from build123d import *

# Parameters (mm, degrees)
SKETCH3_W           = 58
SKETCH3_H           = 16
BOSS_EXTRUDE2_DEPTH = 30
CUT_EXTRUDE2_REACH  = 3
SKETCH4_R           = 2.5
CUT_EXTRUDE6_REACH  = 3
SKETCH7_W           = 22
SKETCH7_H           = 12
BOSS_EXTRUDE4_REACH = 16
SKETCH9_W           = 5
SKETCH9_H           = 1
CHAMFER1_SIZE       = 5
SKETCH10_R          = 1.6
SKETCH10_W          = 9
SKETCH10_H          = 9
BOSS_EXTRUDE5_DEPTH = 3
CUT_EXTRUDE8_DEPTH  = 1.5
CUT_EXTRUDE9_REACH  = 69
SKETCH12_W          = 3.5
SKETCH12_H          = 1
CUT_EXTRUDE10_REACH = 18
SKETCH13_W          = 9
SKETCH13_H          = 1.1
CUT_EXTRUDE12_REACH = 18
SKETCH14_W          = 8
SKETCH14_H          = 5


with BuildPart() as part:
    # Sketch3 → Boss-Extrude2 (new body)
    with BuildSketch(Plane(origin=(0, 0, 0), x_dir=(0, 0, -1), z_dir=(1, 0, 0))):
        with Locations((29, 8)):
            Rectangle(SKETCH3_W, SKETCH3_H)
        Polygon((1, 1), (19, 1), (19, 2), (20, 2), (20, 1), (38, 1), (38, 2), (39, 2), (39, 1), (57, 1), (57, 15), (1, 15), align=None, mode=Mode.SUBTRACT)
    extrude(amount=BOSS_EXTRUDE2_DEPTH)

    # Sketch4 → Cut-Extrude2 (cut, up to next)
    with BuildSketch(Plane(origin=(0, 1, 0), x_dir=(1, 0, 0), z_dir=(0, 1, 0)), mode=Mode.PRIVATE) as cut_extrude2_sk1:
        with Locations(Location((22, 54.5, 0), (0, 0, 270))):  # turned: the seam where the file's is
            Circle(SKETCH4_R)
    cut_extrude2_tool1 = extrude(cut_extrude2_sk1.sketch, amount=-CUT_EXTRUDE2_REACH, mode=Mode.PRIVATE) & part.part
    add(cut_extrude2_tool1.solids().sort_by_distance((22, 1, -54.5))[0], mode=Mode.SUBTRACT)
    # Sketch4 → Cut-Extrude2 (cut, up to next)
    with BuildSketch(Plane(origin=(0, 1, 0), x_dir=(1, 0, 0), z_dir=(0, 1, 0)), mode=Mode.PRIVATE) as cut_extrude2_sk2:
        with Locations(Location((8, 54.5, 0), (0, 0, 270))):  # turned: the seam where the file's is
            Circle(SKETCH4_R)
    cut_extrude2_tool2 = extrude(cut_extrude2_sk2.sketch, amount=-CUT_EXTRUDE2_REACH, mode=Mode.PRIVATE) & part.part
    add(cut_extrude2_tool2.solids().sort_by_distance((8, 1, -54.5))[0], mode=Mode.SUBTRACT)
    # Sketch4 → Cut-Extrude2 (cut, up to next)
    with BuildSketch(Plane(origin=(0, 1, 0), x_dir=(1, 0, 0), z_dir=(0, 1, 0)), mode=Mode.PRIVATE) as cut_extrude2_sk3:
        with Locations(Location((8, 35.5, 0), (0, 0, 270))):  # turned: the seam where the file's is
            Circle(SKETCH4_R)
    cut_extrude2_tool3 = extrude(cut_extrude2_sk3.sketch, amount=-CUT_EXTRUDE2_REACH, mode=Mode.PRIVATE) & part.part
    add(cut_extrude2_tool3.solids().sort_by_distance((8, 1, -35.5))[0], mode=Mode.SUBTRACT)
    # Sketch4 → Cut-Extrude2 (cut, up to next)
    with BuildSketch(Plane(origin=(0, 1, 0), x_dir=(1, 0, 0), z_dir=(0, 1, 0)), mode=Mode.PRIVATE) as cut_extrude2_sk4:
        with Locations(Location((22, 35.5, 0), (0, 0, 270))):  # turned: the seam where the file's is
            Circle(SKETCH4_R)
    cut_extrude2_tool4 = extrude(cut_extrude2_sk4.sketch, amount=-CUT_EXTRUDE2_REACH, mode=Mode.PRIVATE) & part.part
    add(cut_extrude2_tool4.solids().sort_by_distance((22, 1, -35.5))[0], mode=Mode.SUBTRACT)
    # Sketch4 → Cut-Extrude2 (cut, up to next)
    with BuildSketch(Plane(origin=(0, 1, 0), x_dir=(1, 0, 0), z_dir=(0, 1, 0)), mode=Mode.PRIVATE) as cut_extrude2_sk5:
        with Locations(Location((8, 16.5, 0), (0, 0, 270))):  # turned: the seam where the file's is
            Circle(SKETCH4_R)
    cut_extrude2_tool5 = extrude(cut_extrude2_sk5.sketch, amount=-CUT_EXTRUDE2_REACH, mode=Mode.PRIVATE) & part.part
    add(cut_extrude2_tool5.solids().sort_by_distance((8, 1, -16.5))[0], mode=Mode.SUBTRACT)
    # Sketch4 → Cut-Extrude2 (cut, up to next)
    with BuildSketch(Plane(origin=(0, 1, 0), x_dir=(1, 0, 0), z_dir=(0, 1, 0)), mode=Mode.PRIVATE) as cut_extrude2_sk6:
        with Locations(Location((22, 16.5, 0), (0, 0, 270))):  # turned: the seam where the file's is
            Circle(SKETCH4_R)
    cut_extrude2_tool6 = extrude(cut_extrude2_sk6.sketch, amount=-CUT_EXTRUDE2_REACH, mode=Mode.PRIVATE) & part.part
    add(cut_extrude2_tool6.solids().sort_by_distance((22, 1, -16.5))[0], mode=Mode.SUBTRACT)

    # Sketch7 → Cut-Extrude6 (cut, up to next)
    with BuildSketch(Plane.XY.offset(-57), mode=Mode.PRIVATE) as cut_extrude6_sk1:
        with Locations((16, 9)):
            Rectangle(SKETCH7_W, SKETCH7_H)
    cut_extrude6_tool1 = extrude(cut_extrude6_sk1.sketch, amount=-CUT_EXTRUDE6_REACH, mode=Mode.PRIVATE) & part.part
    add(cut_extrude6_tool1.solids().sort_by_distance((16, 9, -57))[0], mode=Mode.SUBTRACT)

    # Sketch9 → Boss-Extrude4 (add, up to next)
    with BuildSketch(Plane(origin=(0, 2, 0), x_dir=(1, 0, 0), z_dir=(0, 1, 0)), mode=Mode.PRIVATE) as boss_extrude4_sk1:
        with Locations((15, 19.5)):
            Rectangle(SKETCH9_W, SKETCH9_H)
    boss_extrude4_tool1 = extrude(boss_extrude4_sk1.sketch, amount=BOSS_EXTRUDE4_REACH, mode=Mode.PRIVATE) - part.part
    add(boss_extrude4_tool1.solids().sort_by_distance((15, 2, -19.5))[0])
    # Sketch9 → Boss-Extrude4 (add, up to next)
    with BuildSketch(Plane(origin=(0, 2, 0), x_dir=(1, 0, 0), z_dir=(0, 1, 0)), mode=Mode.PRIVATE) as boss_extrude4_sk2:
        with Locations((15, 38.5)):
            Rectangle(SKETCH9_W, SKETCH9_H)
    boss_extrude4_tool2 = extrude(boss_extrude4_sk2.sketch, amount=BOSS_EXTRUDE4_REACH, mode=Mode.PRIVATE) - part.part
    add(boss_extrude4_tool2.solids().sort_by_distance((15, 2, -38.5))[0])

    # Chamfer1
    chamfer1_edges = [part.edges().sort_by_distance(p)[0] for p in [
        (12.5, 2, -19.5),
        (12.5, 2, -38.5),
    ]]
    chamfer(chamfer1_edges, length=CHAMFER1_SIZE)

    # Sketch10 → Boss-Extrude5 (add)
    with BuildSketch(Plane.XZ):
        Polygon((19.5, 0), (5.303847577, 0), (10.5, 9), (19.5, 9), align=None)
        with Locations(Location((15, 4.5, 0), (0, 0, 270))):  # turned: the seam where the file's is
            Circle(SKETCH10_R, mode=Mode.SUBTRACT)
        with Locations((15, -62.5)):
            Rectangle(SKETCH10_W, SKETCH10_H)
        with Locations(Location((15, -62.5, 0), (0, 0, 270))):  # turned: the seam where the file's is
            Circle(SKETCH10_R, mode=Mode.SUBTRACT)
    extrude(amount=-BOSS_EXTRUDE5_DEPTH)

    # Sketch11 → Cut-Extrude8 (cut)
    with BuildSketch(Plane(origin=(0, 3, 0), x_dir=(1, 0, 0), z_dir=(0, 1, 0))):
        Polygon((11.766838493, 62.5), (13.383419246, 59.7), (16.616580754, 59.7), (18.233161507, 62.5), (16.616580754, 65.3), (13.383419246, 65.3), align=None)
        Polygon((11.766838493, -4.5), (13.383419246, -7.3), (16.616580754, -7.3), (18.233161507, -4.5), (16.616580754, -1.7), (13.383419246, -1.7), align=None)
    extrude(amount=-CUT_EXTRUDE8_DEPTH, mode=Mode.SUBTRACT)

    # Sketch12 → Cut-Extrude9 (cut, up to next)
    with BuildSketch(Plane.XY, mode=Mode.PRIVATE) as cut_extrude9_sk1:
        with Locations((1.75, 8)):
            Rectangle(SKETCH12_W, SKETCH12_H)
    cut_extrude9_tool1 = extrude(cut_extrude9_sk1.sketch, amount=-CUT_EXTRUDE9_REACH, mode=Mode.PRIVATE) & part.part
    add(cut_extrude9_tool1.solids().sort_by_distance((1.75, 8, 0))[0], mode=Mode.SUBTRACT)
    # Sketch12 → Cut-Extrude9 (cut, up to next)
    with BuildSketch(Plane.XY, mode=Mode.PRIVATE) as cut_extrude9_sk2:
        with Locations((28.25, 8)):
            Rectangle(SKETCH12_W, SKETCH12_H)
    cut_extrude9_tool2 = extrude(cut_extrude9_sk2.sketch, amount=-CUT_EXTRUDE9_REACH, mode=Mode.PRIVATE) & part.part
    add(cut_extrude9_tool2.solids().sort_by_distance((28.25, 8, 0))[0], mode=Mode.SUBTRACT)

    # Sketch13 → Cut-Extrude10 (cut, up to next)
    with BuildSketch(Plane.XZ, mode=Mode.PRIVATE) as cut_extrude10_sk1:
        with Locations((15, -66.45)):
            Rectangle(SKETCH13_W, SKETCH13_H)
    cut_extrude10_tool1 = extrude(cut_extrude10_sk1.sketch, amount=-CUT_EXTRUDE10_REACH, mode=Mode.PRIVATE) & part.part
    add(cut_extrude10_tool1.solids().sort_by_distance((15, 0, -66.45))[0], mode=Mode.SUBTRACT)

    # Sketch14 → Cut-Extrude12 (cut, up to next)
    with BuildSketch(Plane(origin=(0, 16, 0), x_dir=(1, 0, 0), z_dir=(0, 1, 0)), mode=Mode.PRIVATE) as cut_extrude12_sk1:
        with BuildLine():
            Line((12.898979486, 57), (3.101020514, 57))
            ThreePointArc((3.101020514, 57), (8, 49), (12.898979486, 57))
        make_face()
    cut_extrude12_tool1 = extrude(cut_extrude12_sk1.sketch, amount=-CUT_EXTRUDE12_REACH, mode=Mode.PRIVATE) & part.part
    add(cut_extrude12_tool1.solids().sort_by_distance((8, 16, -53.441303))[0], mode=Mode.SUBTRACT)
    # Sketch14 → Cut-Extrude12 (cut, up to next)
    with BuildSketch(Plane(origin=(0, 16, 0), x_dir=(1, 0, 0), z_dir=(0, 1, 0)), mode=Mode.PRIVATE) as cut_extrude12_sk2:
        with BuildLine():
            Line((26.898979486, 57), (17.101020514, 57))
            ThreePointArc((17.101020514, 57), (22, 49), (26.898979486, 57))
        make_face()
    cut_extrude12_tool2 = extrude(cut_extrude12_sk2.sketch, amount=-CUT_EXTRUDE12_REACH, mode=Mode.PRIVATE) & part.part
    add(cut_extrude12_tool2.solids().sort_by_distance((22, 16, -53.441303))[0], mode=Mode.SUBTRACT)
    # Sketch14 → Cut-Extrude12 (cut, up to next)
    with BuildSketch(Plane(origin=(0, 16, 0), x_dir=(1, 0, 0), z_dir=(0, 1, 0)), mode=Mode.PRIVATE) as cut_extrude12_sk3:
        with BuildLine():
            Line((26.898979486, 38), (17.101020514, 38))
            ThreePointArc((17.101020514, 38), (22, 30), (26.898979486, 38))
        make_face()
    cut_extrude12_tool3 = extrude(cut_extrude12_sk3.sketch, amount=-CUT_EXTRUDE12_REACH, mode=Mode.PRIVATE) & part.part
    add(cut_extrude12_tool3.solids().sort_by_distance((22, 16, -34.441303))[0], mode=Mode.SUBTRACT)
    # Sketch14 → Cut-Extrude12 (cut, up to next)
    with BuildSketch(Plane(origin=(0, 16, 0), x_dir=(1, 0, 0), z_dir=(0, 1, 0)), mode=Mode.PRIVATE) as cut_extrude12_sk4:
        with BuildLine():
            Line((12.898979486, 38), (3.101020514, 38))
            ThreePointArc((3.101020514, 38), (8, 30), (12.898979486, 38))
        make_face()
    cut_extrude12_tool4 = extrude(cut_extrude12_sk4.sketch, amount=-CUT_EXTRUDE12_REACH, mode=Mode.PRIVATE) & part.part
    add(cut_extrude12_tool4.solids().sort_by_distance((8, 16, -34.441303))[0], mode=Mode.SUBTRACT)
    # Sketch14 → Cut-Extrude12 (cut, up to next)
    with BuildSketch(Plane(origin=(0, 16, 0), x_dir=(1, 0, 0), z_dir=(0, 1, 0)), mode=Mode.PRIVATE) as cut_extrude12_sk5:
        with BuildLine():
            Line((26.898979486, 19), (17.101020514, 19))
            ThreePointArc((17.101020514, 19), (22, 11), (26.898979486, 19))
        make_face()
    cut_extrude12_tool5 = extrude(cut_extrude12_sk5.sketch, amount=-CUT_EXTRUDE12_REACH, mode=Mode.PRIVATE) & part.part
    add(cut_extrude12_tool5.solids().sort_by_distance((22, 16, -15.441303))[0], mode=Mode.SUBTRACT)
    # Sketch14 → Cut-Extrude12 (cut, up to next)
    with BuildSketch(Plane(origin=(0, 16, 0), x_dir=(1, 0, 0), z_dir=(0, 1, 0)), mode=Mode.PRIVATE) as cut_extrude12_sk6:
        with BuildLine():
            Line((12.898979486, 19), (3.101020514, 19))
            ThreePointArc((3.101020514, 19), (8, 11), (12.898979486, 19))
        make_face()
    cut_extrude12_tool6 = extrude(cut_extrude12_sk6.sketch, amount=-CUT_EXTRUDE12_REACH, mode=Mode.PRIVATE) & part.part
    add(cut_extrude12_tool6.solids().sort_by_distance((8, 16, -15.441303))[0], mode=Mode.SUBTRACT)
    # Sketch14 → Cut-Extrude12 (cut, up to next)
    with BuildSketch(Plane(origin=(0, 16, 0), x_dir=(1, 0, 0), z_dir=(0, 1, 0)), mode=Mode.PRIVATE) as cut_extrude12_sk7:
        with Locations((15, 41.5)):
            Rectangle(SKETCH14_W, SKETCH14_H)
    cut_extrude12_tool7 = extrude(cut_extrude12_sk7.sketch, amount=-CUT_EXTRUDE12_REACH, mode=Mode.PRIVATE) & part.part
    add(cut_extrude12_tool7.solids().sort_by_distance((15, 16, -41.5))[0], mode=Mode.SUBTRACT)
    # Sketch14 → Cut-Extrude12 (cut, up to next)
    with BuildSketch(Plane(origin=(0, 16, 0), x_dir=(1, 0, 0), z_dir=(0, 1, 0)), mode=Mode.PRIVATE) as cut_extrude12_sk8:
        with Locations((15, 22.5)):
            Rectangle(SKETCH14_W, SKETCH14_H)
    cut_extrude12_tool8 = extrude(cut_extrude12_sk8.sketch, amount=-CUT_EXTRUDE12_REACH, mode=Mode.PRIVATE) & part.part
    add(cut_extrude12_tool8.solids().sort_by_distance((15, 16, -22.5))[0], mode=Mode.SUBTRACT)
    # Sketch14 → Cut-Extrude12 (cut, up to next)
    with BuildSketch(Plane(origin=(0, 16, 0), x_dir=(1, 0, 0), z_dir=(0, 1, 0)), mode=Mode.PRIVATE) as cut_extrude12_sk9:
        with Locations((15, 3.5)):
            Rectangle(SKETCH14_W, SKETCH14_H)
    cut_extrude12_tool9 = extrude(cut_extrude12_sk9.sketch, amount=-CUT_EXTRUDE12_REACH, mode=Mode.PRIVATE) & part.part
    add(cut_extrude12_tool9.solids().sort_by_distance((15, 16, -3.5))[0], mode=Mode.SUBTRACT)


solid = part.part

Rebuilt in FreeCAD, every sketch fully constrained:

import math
import FreeCAD as App
import Part
import Sketcher
Q = App.Units.Quantity


def edges_at(feature, points):
    """Names of the edges that pass closest to the given points."""
    edges = feature.Shape.Edges
    near = lambda p: min(range(len(edges)), key=lambda i: edges[i].distToShape(Part.Vertex(*p))[0])
    return sorted({f"Edge{near(p) + 1}" for p in points})

doc = App.newDocument("Part")
body = doc.addObject("PartDesign::Body", "Body")

# Sketch on YZ plane
sketch1 = doc.addObject("Sketcher::SketchObject", "Sketch")
body.addObject(sketch1)
sketch1.AttachmentSupport = (doc.YZ_Plane, [""])
sketch1.MapMode = "FlatFace"
sketch1.addGeometry([
    Part.LineSegment(App.Vector(16, 0, 0), App.Vector(0, 0, 0)),  # 0
    Part.LineSegment(App.Vector(0, 0, 0), App.Vector(0, -58, 0)),  # 1
    Part.LineSegment(App.Vector(0, -58, 0), App.Vector(16, -58, 0)),  # 2
    Part.LineSegment(App.Vector(16, -58, 0), App.Vector(16, 0, 0)),  # 3
    Part.LineSegment(App.Vector(1, -19, 0), App.Vector(1, -1, 0)),  # 4
    Part.LineSegment(App.Vector(1, -1, 0), App.Vector(15, -1, 0)),  # 5
    Part.LineSegment(App.Vector(15, -1, 0), App.Vector(15, -57, 0)),  # 6
    Part.LineSegment(App.Vector(15, -57, 0), App.Vector(1, -57, 0)),  # 7
    Part.LineSegment(App.Vector(1, -57, 0), App.Vector(1, -39, 0)),  # 8
    Part.LineSegment(App.Vector(1, -39, 0), App.Vector(2, -39, 0)),  # 9
    Part.LineSegment(App.Vector(2, -39, 0), App.Vector(2, -38, 0)),  # 10
    Part.LineSegment(App.Vector(2, -38, 0), App.Vector(1, -38, 0)),  # 11
    Part.LineSegment(App.Vector(1, -38, 0), App.Vector(1, -20, 0)),  # 12
    Part.LineSegment(App.Vector(1, -20, 0), App.Vector(2, -20, 0)),  # 13
    Part.LineSegment(App.Vector(2, -20, 0), App.Vector(2, -19, 0)),  # 14
    Part.LineSegment(App.Vector(2, -19, 0), App.Vector(1, -19, 0)),  # 15
], False)
sketch1.addConstraint([
    Sketcher.Constraint("Coincident", 0, 2, 1, 1),
    Sketcher.Constraint("Coincident", 1, 2, 2, 1),
    Sketcher.Constraint("Coincident", 2, 2, 3, 1),
    Sketcher.Constraint("Coincident", 3, 2, 0, 1),
    Sketcher.Constraint("Coincident", 4, 2, 5, 1),
    Sketcher.Constraint("Coincident", 5, 2, 6, 1),
    Sketcher.Constraint("Coincident", 6, 2, 7, 1),
    Sketcher.Constraint("Coincident", 7, 2, 8, 1),
    Sketcher.Constraint("Coincident", 8, 2, 9, 1),
    Sketcher.Constraint("Coincident", 9, 2, 10, 1),
    Sketcher.Constraint("Coincident", 10, 2, 11, 1),
    Sketcher.Constraint("Coincident", 11, 2, 12, 1),
    Sketcher.Constraint("Coincident", 12, 2, 13, 1),
    Sketcher.Constraint("Coincident", 13, 2, 14, 1),
    Sketcher.Constraint("Coincident", 14, 2, 15, 1),
    Sketcher.Constraint("Coincident", 15, 2, 4, 1),
    Sketcher.Constraint("Horizontal", 0),
    Sketcher.Constraint("Vertical", 1),
    Sketcher.Constraint("Horizontal", 2),
    Sketcher.Constraint("Vertical", 3),
    Sketcher.Constraint("Vertical", 4),
    Sketcher.Constraint("Horizontal", 5),
    Sketcher.Constraint("Vertical", 6),
    Sketcher.Constraint("Horizontal", 7),
    Sketcher.Constraint("Vertical", 8),
    Sketcher.Constraint("Horizontal", 9),
    Sketcher.Constraint("Vertical", 10),
    Sketcher.Constraint("Horizontal", 11),
    Sketcher.Constraint("Vertical", 12),
    Sketcher.Constraint("Horizontal", 13),
    Sketcher.Constraint("Vertical", 14),
    Sketcher.Constraint("Horizontal", 15),
    Sketcher.Constraint("Coincident", 0, 2, -1, 1),
    Sketcher.Constraint("Vertical", 4, 2, 7, 2),
    Sketcher.Constraint("Vertical", 8, 2, 11, 2),
    Sketcher.Constraint("Vertical", 10, 2, 13, 2),
    Sketcher.Constraint("Equal", 4, 8),
    Sketcher.Constraint("Equal", 15, 10),
    Sketcher.Constraint("Equal", 8, 12),
    Sketcher.Constraint("Equal", 10, 14),
    Sketcher.Constraint("DistanceX", 0, 2, 0, 1, 16.0),
    Sketcher.Constraint("DistanceX", 5, 1, 5, 2, 14.0),
    Sketcher.Constraint("DistanceX", 9, 1, 9, 2, 1.0),
    Sketcher.Constraint("DistanceY", 1, 2, 1, 1, 58.0),
    Sketcher.Constraint("DistanceY", 4, 1, 4, 2, 18.0),
    Sketcher.Constraint("DistanceX", -1, 1, 4, 2, 1.0),
    Sketcher.Constraint("DistanceY", 4, 2, -1, 1, 1.0),
])
pad1 = doc.addObject("PartDesign::Pad", "Pad")
body.addObject(pad1)
pad1.Profile = sketch1
pad1.Length = 30

# Sketch on XZ plane
sketch2 = doc.addObject("Sketcher::SketchObject", "Sketch001")
body.addObject(sketch2)
sketch2.AttachmentSupport = (doc.XZ_Plane, [""])
sketch2.MapMode = "FlatFace"
sketch2.AttachmentOffset = App.Placement(App.Vector(0, 0, -1), App.Rotation())
sketch2.addGeometry(Part.Circle(App.Vector(22, -54.5, 0), App.Vector(0, 0, 1), 2.5), False)
sketch2.addConstraint([
    Sketcher.Constraint("Diameter", 0, 5.0),
    Sketcher.Constraint("DistanceX", -1, 1, 0, 3, 22.0),
    Sketcher.Constraint("DistanceY", 0, 3, -1, 1, 54.5),
])
pocket1 = doc.addObject("PartDesign::Pocket", "Pocket")
body.addObject(pocket1)
pocket1.Profile = sketch2
pocket1.Type = "UpToFirst"
pocket1.Reversed = True

# Sketch on XZ plane
sketch3 = doc.addObject("Sketcher::SketchObject", "Sketch002")
body.addObject(sketch3)
sketch3.AttachmentSupport = (doc.XZ_Plane, [""])
sketch3.MapMode = "FlatFace"
sketch3.AttachmentOffset = App.Placement(App.Vector(0, 0, -1), App.Rotation())
sketch3.addGeometry(Part.Circle(App.Vector(8, -54.5, 0), App.Vector(0, 0, 1), 2.5), False)
sketch3.addConstraint([
    Sketcher.Constraint("Diameter", 0, 5.0),
    Sketcher.Constraint("DistanceX", -1, 1, 0, 3, 8.0),
    Sketcher.Constraint("DistanceY", 0, 3, -1, 1, 54.5),
])
pocket2 = doc.addObject("PartDesign::Pocket", "Pocket001")
body.addObject(pocket2)
pocket2.Profile = sketch3
pocket2.Type = "UpToFirst"
pocket2.Reversed = True

# Sketch on XZ plane
sketch4 = doc.addObject("Sketcher::SketchObject", "Sketch003")
body.addObject(sketch4)
sketch4.AttachmentSupport = (doc.XZ_Plane, [""])
sketch4.MapMode = "FlatFace"
sketch4.AttachmentOffset = App.Placement(App.Vector(0, 0, -1), App.Rotation())
sketch4.addGeometry(Part.Circle(App.Vector(8, -35.5, 0), App.Vector(0, 0, 1), 2.5), False)
sketch4.addConstraint([
    Sketcher.Constraint("Diameter", 0, 5.0),
    Sketcher.Constraint("DistanceX", -1, 1, 0, 3, 8.0),
    Sketcher.Constraint("DistanceY", 0, 3, -1, 1, 35.5),
])
pocket3 = doc.addObject("PartDesign::Pocket", "Pocket002")
body.addObject(pocket3)
pocket3.Profile = sketch4
pocket3.Type = "UpToFirst"
pocket3.Reversed = True

# Sketch on XZ plane
sketch5 = doc.addObject("Sketcher::SketchObject", "Sketch004")
body.addObject(sketch5)
sketch5.AttachmentSupport = (doc.XZ_Plane, [""])
sketch5.MapMode = "FlatFace"
sketch5.AttachmentOffset = App.Placement(App.Vector(0, 0, -1), App.Rotation())
sketch5.addGeometry(Part.Circle(App.Vector(22, -35.5, 0), App.Vector(0, 0, 1), 2.5), False)
sketch5.addConstraint([
    Sketcher.Constraint("Diameter", 0, 5.0),
    Sketcher.Constraint("DistanceX", -1, 1, 0, 3, 22.0),
    Sketcher.Constraint("DistanceY", 0, 3, -1, 1, 35.5),
])
pocket4 = doc.addObject("PartDesign::Pocket", "Pocket003")
body.addObject(pocket4)
pocket4.Profile = sketch5
pocket4.Type = "UpToFirst"
pocket4.Reversed = True

# Sketch on XZ plane
sketch6 = doc.addObject("Sketcher::SketchObject", "Sketch005")
body.addObject(sketch6)
sketch6.AttachmentSupport = (doc.XZ_Plane, [""])
sketch6.MapMode = "FlatFace"
sketch6.AttachmentOffset = App.Placement(App.Vector(0, 0, -1), App.Rotation())
sketch6.addGeometry(Part.Circle(App.Vector(8, -16.5, 0), App.Vector(0, 0, 1), 2.5), False)
sketch6.addConstraint([
    Sketcher.Constraint("Diameter", 0, 5.0),
    Sketcher.Constraint("DistanceX", -1, 1, 0, 3, 8.0),
    Sketcher.Constraint("DistanceY", 0, 3, -1, 1, 16.5),
])
pocket5 = doc.addObject("PartDesign::Pocket", "Pocket004")
body.addObject(pocket5)
pocket5.Profile = sketch6
pocket5.Type = "UpToFirst"
pocket5.Reversed = True

# Sketch on XZ plane
sketch7 = doc.addObject("Sketcher::SketchObject", "Sketch006")
body.addObject(sketch7)
sketch7.AttachmentSupport = (doc.XZ_Plane, [""])
sketch7.MapMode = "FlatFace"
sketch7.AttachmentOffset = App.Placement(App.Vector(0, 0, -1), App.Rotation())
sketch7.addGeometry(Part.Circle(App.Vector(22, -16.5, 0), App.Vector(0, 0, 1), 2.5), False)
sketch7.addConstraint([
    Sketcher.Constraint("Diameter", 0, 5.0),
    Sketcher.Constraint("DistanceX", -1, 1, 0, 3, 22.0),
    Sketcher.Constraint("DistanceY", 0, 3, -1, 1, 16.5),
])
pocket6 = doc.addObject("PartDesign::Pocket", "Pocket005")
body.addObject(pocket6)
pocket6.Profile = sketch7
pocket6.Type = "UpToFirst"
pocket6.Reversed = True

# Sketch on XY plane
sketch8 = doc.addObject("Sketcher::SketchObject", "Sketch007")
body.addObject(sketch8)
sketch8.AttachmentSupport = (doc.XY_Plane, [""])
sketch8.MapMode = "FlatFace"
sketch8.AttachmentOffset = App.Placement(App.Vector(0, 0, -57), App.Rotation())
sketch8.addGeometry([
    Part.LineSegment(App.Vector(5, 15, 0), App.Vector(5, 3, 0)),
    Part.LineSegment(App.Vector(5, 3, 0), App.Vector(27, 3, 0)),
    Part.LineSegment(App.Vector(27, 3, 0), App.Vector(27, 15, 0)),
    Part.LineSegment(App.Vector(27, 15, 0), App.Vector(5, 15, 0)),
], False)
sketch8.addConstraint([
    Sketcher.Constraint("Coincident", 0, 2, 1, 1),
    Sketcher.Constraint("Coincident", 1, 2, 2, 1),
    Sketcher.Constraint("Coincident", 2, 2, 3, 1),
    Sketcher.Constraint("Coincident", 3, 2, 0, 1),
    Sketcher.Constraint("Vertical", 0),
    Sketcher.Constraint("Horizontal", 1),
    Sketcher.Constraint("Vertical", 2),
    Sketcher.Constraint("Horizontal", 3),
    Sketcher.Constraint("DistanceX", 1, 1, 1, 2, 22.0),
    Sketcher.Constraint("DistanceY", 0, 2, 0, 1, 12.0),
    Sketcher.Constraint("DistanceX", -1, 1, 0, 2, 5.0),
    Sketcher.Constraint("DistanceY", -1, 1, 0, 2, 3.0),
])
pocket7 = doc.addObject("PartDesign::Pocket", "Pocket006")
body.addObject(pocket7)
pocket7.Profile = sketch8
pocket7.Type = "UpToFirst"

# Sketch on XZ plane
sketch9 = doc.addObject("Sketcher::SketchObject", "Sketch008")
body.addObject(sketch9)
sketch9.AttachmentSupport = (doc.XZ_Plane, [""])
sketch9.MapMode = "FlatFace"
sketch9.AttachmentOffset = App.Placement(App.Vector(0, 0, -2), App.Rotation())
sketch9.addGeometry([
    Part.LineSegment(App.Vector(12.5, -20, 0), App.Vector(12.5, -19, 0)),
    Part.LineSegment(App.Vector(12.5, -19, 0), App.Vector(17.5, -19, 0)),
    Part.LineSegment(App.Vector(17.5, -19, 0), App.Vector(17.5, -20, 0)),
    Part.LineSegment(App.Vector(17.5, -20, 0), App.Vector(12.5, -20, 0)),
], False)
sketch9.addConstraint([
    Sketcher.Constraint("Coincident", 0, 2, 1, 1),
    Sketcher.Constraint("Coincident", 1, 2, 2, 1),
    Sketcher.Constraint("Coincident", 2, 2, 3, 1),
    Sketcher.Constraint("Coincident", 3, 2, 0, 1),
    Sketcher.Constraint("Vertical", 0),
    Sketcher.Constraint("Horizontal", 1),
    Sketcher.Constraint("Vertical", 2),
    Sketcher.Constraint("Horizontal", 3),
    Sketcher.Constraint("DistanceX", 1, 1, 1, 2, 5.0),
    Sketcher.Constraint("DistanceY", 0, 1, 0, 2, 1.0),
    Sketcher.Constraint("DistanceY", 0, 2, -1, 1, 19.0),
    Sketcher.Constraint("DistanceX", -1, 1, 0, 2, 12.5),
])
pad2 = doc.addObject("PartDesign::Pad", "Pad001")
body.addObject(pad2)
pad2.Profile = sketch9
pad2.Type = "UpToFirst"
pad2.Reversed = True

# Sketch on XZ plane
sketch10 = doc.addObject("Sketcher::SketchObject", "Sketch009")
body.addObject(sketch10)
sketch10.AttachmentSupport = (doc.XZ_Plane, [""])
sketch10.MapMode = "FlatFace"
sketch10.AttachmentOffset = App.Placement(App.Vector(0, 0, -2), App.Rotation())
sketch10.addGeometry([
    Part.LineSegment(App.Vector(12.5, -39, 0), App.Vector(12.5, -38, 0)),
    Part.LineSegment(App.Vector(12.5, -38, 0), App.Vector(17.5, -38, 0)),
    Part.LineSegment(App.Vector(17.5, -38, 0), App.Vector(17.5, -39, 0)),
    Part.LineSegment(App.Vector(17.5, -39, 0), App.Vector(12.5, -39, 0)),
], False)
sketch10.addConstraint([
    Sketcher.Constraint("Coincident", 0, 2, 1, 1),
    Sketcher.Constraint("Coincident", 1, 2, 2, 1),
    Sketcher.Constraint("Coincident", 2, 2, 3, 1),
    Sketcher.Constraint("Coincident", 3, 2, 0, 1),
    Sketcher.Constraint("Vertical", 0),
    Sketcher.Constraint("Horizontal", 1),
    Sketcher.Constraint("Vertical", 2),
    Sketcher.Constraint("Horizontal", 3),
    Sketcher.Constraint("DistanceX", 1, 1, 1, 2, 5.0),
    Sketcher.Constraint("DistanceY", 0, 1, 0, 2, 1.0),
    Sketcher.Constraint("DistanceY", 0, 2, -1, 1, 38.0),
    Sketcher.Constraint("DistanceX", -1, 1, 0, 2, 12.5),
])
pad3 = doc.addObject("PartDesign::Pad", "Pad002")
body.addObject(pad3)
pad3.Profile = sketch10
pad3.Type = "UpToFirst"
pad3.Reversed = True
doc.recompute()

chamfer = doc.addObject("PartDesign::Chamfer", "Chamfer")
body.addObject(chamfer)
chamfer.Base = (pad3, edges_at(pad3, [(12.5, 2, -19.5), (12.5, 2, -38.5)]))
chamfer.Size = 5

# Sketch on XZ plane
sketch11 = doc.addObject("Sketcher::SketchObject", "Sketch010")
body.addObject(sketch11)
sketch11.AttachmentSupport = (doc.XZ_Plane, [""])
sketch11.MapMode = "FlatFace"
sketch11.addGeometry([
    Part.LineSegment(App.Vector(5.303848, 0, 0), App.Vector(19.5, 0, 0)),  # 0
    Part.LineSegment(App.Vector(19.5, 0, 0), App.Vector(19.5, 9, 0)),  # 1
    Part.LineSegment(App.Vector(19.5, 9, 0), App.Vector(10.5, 9, 0)),  # 2
    Part.LineSegment(App.Vector(10.5, 9, 0), App.Vector(5.303848, 0, 0)),  # 3
    Part.Circle(App.Vector(15, 4.5, 0), App.Vector(0, 0, 1), 1.6),  # 4
    Part.LineSegment(App.Vector(10.5, -58, 0), App.Vector(10.5, -67, 0)),  # 5
    Part.LineSegment(App.Vector(10.5, -67, 0), App.Vector(19.5, -67, 0)),  # 6
    Part.LineSegment(App.Vector(19.5, -67, 0), App.Vector(19.5, -58, 0)),  # 7
    Part.LineSegment(App.Vector(19.5, -58, 0), App.Vector(10.5, -58, 0)),  # 8
    Part.Circle(App.Vector(15, -62.5, 0), App.Vector(0, 0, 1), 1.6),  # 9
], False)
sketch11.addConstraint([
    Sketcher.Constraint("Coincident", 0, 2, 1, 1),
    Sketcher.Constraint("Coincident", 1, 2, 2, 1),
    Sketcher.Constraint("Coincident", 2, 2, 3, 1),
    Sketcher.Constraint("Coincident", 3, 2, 0, 1),
    Sketcher.Constraint("Coincident", 5, 2, 6, 1),
    Sketcher.Constraint("Coincident", 6, 2, 7, 1),
    Sketcher.Constraint("Coincident", 7, 2, 8, 1),
    Sketcher.Constraint("Coincident", 8, 2, 5, 1),
    Sketcher.Constraint("Horizontal", 0),
    Sketcher.Constraint("Vertical", 1),
    Sketcher.Constraint("Horizontal", 2),
    Sketcher.Constraint("Vertical", 5),
    Sketcher.Constraint("Horizontal", 6),
    Sketcher.Constraint("Vertical", 7),
    Sketcher.Constraint("Horizontal", 8),
    Sketcher.Constraint("Equal", 4, 9),
    Sketcher.Constraint("PointOnObject", 0, 2, -1),
    Sketcher.Constraint("Vertical", 4, 3, 9, 3),
    Sketcher.Constraint("Vertical", 2, 2, 5, 2),
    Sketcher.Constraint("Vertical", 1, 2, 6, 2),
    Sketcher.Constraint("Equal", 8, 1),
    Sketcher.Constraint("Equal", 1, 5),
    Sketcher.Constraint("Diameter", 4, 3.2),
    Sketcher.Constraint("DistanceX", 2, 2, 2, 1, 9.0),
    Sketcher.Constraint("Angle", 3, Q("-120 deg")),
    Sketcher.Constraint("DistanceX", -1, 1, 4, 3, 15.0),
    Sketcher.Constraint("DistanceY", 5, 2, -1, 1, 67.0),
    Sketcher.Constraint("DistanceY", 9, 3, 4, 3, 67.0),
    Sketcher.Constraint("DistanceY", -1, 1, 4, 3, 4.5),
    Sketcher.Constraint("DistanceX", -1, 1, 0, 2, 19.5),
])
pad4 = doc.addObject("PartDesign::Pad", "Pad003")
body.addObject(pad4)
pad4.Profile = sketch11
pad4.Length = 3
pad4.Reversed = True

# Sketch on XZ plane
sketch12 = doc.addObject("Sketcher::SketchObject", "Sketch011")
body.addObject(sketch12)
sketch12.AttachmentSupport = (doc.XZ_Plane, [""])
sketch12.MapMode = "FlatFace"
sketch12.AttachmentOffset = App.Placement(App.Vector(0, 0, -3), App.Rotation())
sketch12.addGeometry([
    Part.LineSegment(App.Vector(11.766838, -62.5, 0), App.Vector(13.383419, -59.7, 0)),  # 0
    Part.LineSegment(App.Vector(13.383419, -59.7, 0), App.Vector(16.616581, -59.7, 0)),  # 1
    Part.LineSegment(App.Vector(16.616581, -59.7, 0), App.Vector(18.233162, -62.5, 0)),  # 2
    Part.LineSegment(App.Vector(18.233162, -62.5, 0), App.Vector(16.616581, -65.3, 0)),  # 3
    Part.LineSegment(App.Vector(16.616581, -65.3, 0), App.Vector(13.383419, -65.3, 0)),  # 4
    Part.LineSegment(App.Vector(13.383419, -65.3, 0), App.Vector(11.766838, -62.5, 0)),  # 5
    Part.LineSegment(App.Vector(11.766838, 4.5, 0), App.Vector(13.383419, 7.3, 0)),  # 6
    Part.LineSegment(App.Vector(13.383419, 7.3, 0), App.Vector(16.616581, 7.3, 0)),  # 7
    Part.LineSegment(App.Vector(16.616581, 7.3, 0), App.Vector(18.233162, 4.5, 0)),  # 8
    Part.LineSegment(App.Vector(18.233162, 4.5, 0), App.Vector(16.616581, 1.7, 0)),  # 9
    Part.LineSegment(App.Vector(16.616581, 1.7, 0), App.Vector(13.383419, 1.7, 0)),  # 10
    Part.LineSegment(App.Vector(13.383419, 1.7, 0), App.Vector(11.766838, 4.5, 0)),  # 11
], False)
sketch12.addConstraint([
    Sketcher.Constraint("Coincident", 0, 2, 1, 1),
    Sketcher.Constraint("Coincident", 1, 2, 2, 1),
    Sketcher.Constraint("Coincident", 2, 2, 3, 1),
    Sketcher.Constraint("Coincident", 3, 2, 4, 1),
    Sketcher.Constraint("Coincident", 4, 2, 5, 1),
    Sketcher.Constraint("Coincident", 5, 2, 0, 1),
    Sketcher.Constraint("Coincident", 6, 2, 7, 1),
    Sketcher.Constraint("Coincident", 7, 2, 8, 1),
    Sketcher.Constraint("Coincident", 8, 2, 9, 1),
    Sketcher.Constraint("Coincident", 9, 2, 10, 1),
    Sketcher.Constraint("Coincident", 10, 2, 11, 1),
    Sketcher.Constraint("Coincident", 11, 2, 6, 1),
    Sketcher.Constraint("Horizontal", 1),
    Sketcher.Constraint("Horizontal", 4),
    Sketcher.Constraint("Horizontal", 7),
    Sketcher.Constraint("Horizontal", 10),
    Sketcher.Constraint("Parallel", 0, 3),
    Sketcher.Constraint("Parallel", 2, 5),
    Sketcher.Constraint("Parallel", 3, 6),
    Sketcher.Constraint("Parallel", 5, 8),
    Sketcher.Constraint("Parallel", 6, 9),
    Sketcher.Constraint("Parallel", 8, 11),
    Sketcher.Constraint("Horizontal", 2, 2, 5, 2),
    Sketcher.Constraint("Horizontal", 8, 2, 11, 2),
    Sketcher.Constraint("Vertical", 1, 2, 3, 2),
    Sketcher.Constraint("Vertical", 0, 2, 4, 2),
    Sketcher.Constraint("Vertical", 4, 2, 6, 2),
    Sketcher.Constraint("Vertical", 3, 2, 7, 2),
    Sketcher.Constraint("Vertical", 2, 2, 8, 2),
    Sketcher.Constraint("Vertical", 7, 2, 9, 2),
    Sketcher.Constraint("Angle", 0, Q("60 deg")),
    Sketcher.Constraint("DistanceY", 0, 2, 6, 2, 67.0),
    Sketcher.Constraint("DistanceY", 0, 2, -1, 1, 59.7),
    Sketcher.Constraint("DistanceY", 2, 2, -1, 1, 62.5),
    Sketcher.Constraint("DistanceX", 1, 1, 1, 2, 3.233162),
    Sketcher.Constraint("DistanceX", -1, 1, 0, 2, 13.383419),
])
pocket8 = doc.addObject("PartDesign::Pocket", "Pocket007")
body.addObject(pocket8)
pocket8.Profile = sketch12
pocket8.Length = 1.5
pocket8.Reversed = True

# Sketch on XY plane
sketch13 = doc.addObject("Sketcher::SketchObject", "Sketch012")
body.addObject(sketch13)
sketch13.AttachmentSupport = (doc.XY_Plane, [""])
sketch13.MapMode = "FlatFace"
sketch13.addGeometry([
    Part.LineSegment(App.Vector(0, 8.5, 0), App.Vector(0, 7.5, 0)),
    Part.LineSegment(App.Vector(0, 7.5, 0), App.Vector(3.5, 7.5, 0)),
    Part.LineSegment(App.Vector(3.5, 7.5, 0), App.Vector(3.5, 8.5, 0)),
    Part.LineSegment(App.Vector(3.5, 8.5, 0), App.Vector(0, 8.5, 0)),
], False)
sketch13.addConstraint([
    Sketcher.Constraint("Coincident", 0, 2, 1, 1),
    Sketcher.Constraint("Coincident", 1, 2, 2, 1),
    Sketcher.Constraint("Coincident", 2, 2, 3, 1),
    Sketcher.Constraint("Coincident", 3, 2, 0, 1),
    Sketcher.Constraint("Vertical", 0),
    Sketcher.Constraint("Horizontal", 1),
    Sketcher.Constraint("Vertical", 2),
    Sketcher.Constraint("Horizontal", 3),
    Sketcher.Constraint("PointOnObject", 0, 2, -2),
    Sketcher.Constraint("DistanceY", 0, 2, 0, 1, 1.0),
    Sketcher.Constraint("DistanceX", 1, 1, 1, 2, 3.5),
    Sketcher.Constraint("DistanceY", -1, 1, 0, 2, 7.5),
])
pocket9 = doc.addObject("PartDesign::Pocket", "Pocket008")
body.addObject(pocket9)
pocket9.Profile = sketch13
pocket9.Type = "UpToFirst"

# Sketch on XY plane
sketch14 = doc.addObject("Sketcher::SketchObject", "Sketch013")
body.addObject(sketch14)
sketch14.AttachmentSupport = (doc.XY_Plane, [""])
sketch14.MapMode = "FlatFace"
sketch14.addGeometry([
    Part.LineSegment(App.Vector(26.5, 8.5, 0), App.Vector(26.5, 7.5, 0)),
    Part.LineSegment(App.Vector(26.5, 7.5, 0), App.Vector(30, 7.5, 0)),
    Part.LineSegment(App.Vector(30, 7.5, 0), App.Vector(30, 8.5, 0)),
    Part.LineSegment(App.Vector(30, 8.5, 0), App.Vector(26.5, 8.5, 0)),
], False)
sketch14.addConstraint([
    Sketcher.Constraint("Coincident", 0, 2, 1, 1),
    Sketcher.Constraint("Coincident", 1, 2, 2, 1),
    Sketcher.Constraint("Coincident", 2, 2, 3, 1),
    Sketcher.Constraint("Coincident", 3, 2, 0, 1),
    Sketcher.Constraint("Vertical", 0),
    Sketcher.Constraint("Horizontal", 1),
    Sketcher.Constraint("Vertical", 2),
    Sketcher.Constraint("Horizontal", 3),
    Sketcher.Constraint("DistanceY", 0, 2, 0, 1, 1.0),
    Sketcher.Constraint("DistanceX", 1, 1, 1, 2, 3.5),
    Sketcher.Constraint("DistanceX", -1, 1, 1, 2, 30.0),
    Sketcher.Constraint("DistanceY", -1, 1, 0, 2, 7.5),
])
pocket10 = doc.addObject("PartDesign::Pocket", "Pocket009")
body.addObject(pocket10)
pocket10.Profile = sketch14
pocket10.Type = "UpToFirst"

# Sketch on XZ plane
sketch15 = doc.addObject("Sketcher::SketchObject", "Sketch014")
body.addObject(sketch15)
sketch15.AttachmentSupport = (doc.XZ_Plane, [""])
sketch15.MapMode = "FlatFace"
sketch15.addGeometry([
    Part.LineSegment(App.Vector(10.5, -65.9, 0), App.Vector(10.5, -67, 0)),
    Part.LineSegment(App.Vector(10.5, -67, 0), App.Vector(19.5, -67, 0)),
    Part.LineSegment(App.Vector(19.5, -67, 0), App.Vector(19.5, -65.9, 0)),
    Part.LineSegment(App.Vector(19.5, -65.9, 0), App.Vector(10.5, -65.9, 0)),
], False)
sketch15.addConstraint([
    Sketcher.Constraint("Coincident", 0, 2, 1, 1),
    Sketcher.Constraint("Coincident", 1, 2, 2, 1),
    Sketcher.Constraint("Coincident", 2, 2, 3, 1),
    Sketcher.Constraint("Coincident", 3, 2, 0, 1),
    Sketcher.Constraint("Vertical", 0),
    Sketcher.Constraint("Horizontal", 1),
    Sketcher.Constraint("Vertical", 2),
    Sketcher.Constraint("Horizontal", 3),
    Sketcher.Constraint("DistanceX", 1, 1, 1, 2, 9.0),
    Sketcher.Constraint("DistanceY", 0, 2, 0, 1, 1.1),
    Sketcher.Constraint("DistanceY", 0, 2, -1, 1, 67.0),
    Sketcher.Constraint("DistanceX", -1, 1, 0, 2, 10.5),
])
pocket11 = doc.addObject("PartDesign::Pocket", "Pocket010")
body.addObject(pocket11)
pocket11.Profile = sketch15
pocket11.Type = "UpToFirst"

# Sketch on XZ plane
sketch16 = doc.addObject("Sketcher::SketchObject", "Sketch015")
body.addObject(sketch16)
sketch16.AttachmentSupport = (doc.XZ_Plane, [""])
sketch16.MapMode = "FlatFace"
sketch16.AttachmentOffset = App.Placement(App.Vector(0, 0, -16), App.Rotation())
sketch16.addGeometry([
    Part.LineSegment(App.Vector(12.898979, -57, 0), App.Vector(3.101021, -57, 0)),
    Part.ArcOfCircle(Part.Circle(App.Vector(8, -54.5, 0), App.Vector(0, 0, 1), 5.5), math.radians(-27.035692), math.radians(207.035692)),
], False)
sketch16.addConstraint([
    Sketcher.Constraint("Coincident", 0, 1, 1, 1),
    Sketcher.Constraint("Coincident", 1, 2, 0, 2),
    Sketcher.Constraint("Horizontal", 0),
    Sketcher.Constraint("Radius", 1, 5.5),
    Sketcher.Constraint("DistanceX", -1, 1, 1, 3, 8.0),
    Sketcher.Constraint("DistanceY", 0, 1, -1, 1, 57.0),
    Sketcher.Constraint("DistanceY", 1, 3, -1, 1, 54.5),
])
pocket12 = doc.addObject("PartDesign::Pocket", "Pocket011")
body.addObject(pocket12)
pocket12.Profile = sketch16
pocket12.Type = "UpToFirst"
pocket12.Reversed = True

# Sketch on XZ plane
sketch17 = doc.addObject("Sketcher::SketchObject", "Sketch016")
body.addObject(sketch17)
sketch17.AttachmentSupport = (doc.XZ_Plane, [""])
sketch17.MapMode = "FlatFace"
sketch17.AttachmentOffset = App.Placement(App.Vector(0, 0, -16), App.Rotation())
sketch17.addGeometry([
    Part.LineSegment(App.Vector(26.898979, -57, 0), App.Vector(17.101021, -57, 0)),
    Part.ArcOfCircle(Part.Circle(App.Vector(22, -54.5, 0), App.Vector(0, 0, 1), 5.5), math.radians(-27.035692), math.radians(207.035692)),
], False)
sketch17.addConstraint([
    Sketcher.Constraint("Coincident", 0, 1, 1, 1),
    Sketcher.Constraint("Coincident", 1, 2, 0, 2),
    Sketcher.Constraint("Horizontal", 0),
    Sketcher.Constraint("Radius", 1, 5.5),
    Sketcher.Constraint("DistanceX", -1, 1, 1, 3, 22.0),
    Sketcher.Constraint("DistanceY", 0, 1, -1, 1, 57.0),
    Sketcher.Constraint("DistanceY", 1, 3, -1, 1, 54.5),
])
pocket13 = doc.addObject("PartDesign::Pocket", "Pocket012")
body.addObject(pocket13)
pocket13.Profile = sketch17
pocket13.Type = "UpToFirst"
pocket13.Reversed = True

# Sketch on XZ plane
sketch18 = doc.addObject("Sketcher::SketchObject", "Sketch017")
body.addObject(sketch18)
sketch18.AttachmentSupport = (doc.XZ_Plane, [""])
sketch18.MapMode = "FlatFace"
sketch18.AttachmentOffset = App.Placement(App.Vector(0, 0, -16), App.Rotation())
sketch18.addGeometry([
    Part.LineSegment(App.Vector(26.898979, -38, 0), App.Vector(17.101021, -38, 0)),
    Part.ArcOfCircle(Part.Circle(App.Vector(22, -35.5, 0), App.Vector(0, 0, 1), 5.5), math.radians(-27.035692), math.radians(207.035692)),
], False)
sketch18.addConstraint([
    Sketcher.Constraint("Coincident", 0, 1, 1, 1),
    Sketcher.Constraint("Coincident", 1, 2, 0, 2),
    Sketcher.Constraint("Horizontal", 0),
    Sketcher.Constraint("Radius", 1, 5.5),
    Sketcher.Constraint("DistanceX", -1, 1, 1, 3, 22.0),
    Sketcher.Constraint("DistanceY", 0, 1, -1, 1, 38.0),
    Sketcher.Constraint("DistanceY", 1, 3, -1, 1, 35.5),
])
pocket14 = doc.addObject("PartDesign::Pocket", "Pocket013")
body.addObject(pocket14)
pocket14.Profile = sketch18
pocket14.Type = "UpToFirst"
pocket14.Reversed = True

# Sketch on XZ plane
sketch19 = doc.addObject("Sketcher::SketchObject", "Sketch018")
body.addObject(sketch19)
sketch19.AttachmentSupport = (doc.XZ_Plane, [""])
sketch19.MapMode = "FlatFace"
sketch19.AttachmentOffset = App.Placement(App.Vector(0, 0, -16), App.Rotation())
sketch19.addGeometry([
    Part.LineSegment(App.Vector(12.898979, -38, 0), App.Vector(3.101021, -38, 0)),
    Part.ArcOfCircle(Part.Circle(App.Vector(8, -35.5, 0), App.Vector(0, 0, 1), 5.5), math.radians(-27.035692), math.radians(207.035692)),
], False)
sketch19.addConstraint([
    Sketcher.Constraint("Coincident", 0, 1, 1, 1),
    Sketcher.Constraint("Coincident", 1, 2, 0, 2),
    Sketcher.Constraint("Horizontal", 0),
    Sketcher.Constraint("Radius", 1, 5.5),
    Sketcher.Constraint("DistanceX", -1, 1, 1, 3, 8.0),
    Sketcher.Constraint("DistanceY", 0, 1, -1, 1, 38.0),
    Sketcher.Constraint("DistanceY", 1, 3, -1, 1, 35.5),
])
pocket15 = doc.addObject("PartDesign::Pocket", "Pocket014")
body.addObject(pocket15)
pocket15.Profile = sketch19
pocket15.Type = "UpToFirst"
pocket15.Reversed = True

# Sketch on XZ plane
sketch20 = doc.addObject("Sketcher::SketchObject", "Sketch019")
body.addObject(sketch20)
sketch20.AttachmentSupport = (doc.XZ_Plane, [""])
sketch20.MapMode = "FlatFace"
sketch20.AttachmentOffset = App.Placement(App.Vector(0, 0, -16), App.Rotation())
sketch20.addGeometry([
    Part.LineSegment(App.Vector(26.898979, -19, 0), App.Vector(17.101021, -19, 0)),
    Part.ArcOfCircle(Part.Circle(App.Vector(22, -16.5, 0), App.Vector(0, 0, 1), 5.5), math.radians(-27.035692), math.radians(207.035692)),
], False)
sketch20.addConstraint([
    Sketcher.Constraint("Coincident", 0, 1, 1, 1),
    Sketcher.Constraint("Coincident", 1, 2, 0, 2),
    Sketcher.Constraint("Horizontal", 0),
    Sketcher.Constraint("Radius", 1, 5.5),
    Sketcher.Constraint("DistanceX", -1, 1, 1, 3, 22.0),
    Sketcher.Constraint("DistanceY", 0, 1, -1, 1, 19.0),
    Sketcher.Constraint("DistanceY", 1, 3, -1, 1, 16.5),
])
pocket16 = doc.addObject("PartDesign::Pocket", "Pocket015")
body.addObject(pocket16)
pocket16.Profile = sketch20
pocket16.Type = "UpToFirst"
pocket16.Reversed = True

# Sketch on XZ plane
sketch21 = doc.addObject("Sketcher::SketchObject", "Sketch020")
body.addObject(sketch21)
sketch21.AttachmentSupport = (doc.XZ_Plane, [""])
sketch21.MapMode = "FlatFace"
sketch21.AttachmentOffset = App.Placement(App.Vector(0, 0, -16), App.Rotation())
sketch21.addGeometry([
    Part.LineSegment(App.Vector(12.898979, -19, 0), App.Vector(3.101021, -19, 0)),
    Part.ArcOfCircle(Part.Circle(App.Vector(8, -16.5, 0), App.Vector(0, 0, 1), 5.5), math.radians(-27.035692), math.radians(207.035692)),
], False)
sketch21.addConstraint([
    Sketcher.Constraint("Coincident", 0, 1, 1, 1),
    Sketcher.Constraint("Coincident", 1, 2, 0, 2),
    Sketcher.Constraint("Horizontal", 0),
    Sketcher.Constraint("Radius", 1, 5.5),
    Sketcher.Constraint("DistanceX", -1, 1, 1, 3, 8.0),
    Sketcher.Constraint("DistanceY", 0, 1, -1, 1, 19.0),
    Sketcher.Constraint("DistanceY", 1, 3, -1, 1, 16.5),
])
pocket17 = doc.addObject("PartDesign::Pocket", "Pocket016")
body.addObject(pocket17)
pocket17.Profile = sketch21
pocket17.Type = "UpToFirst"
pocket17.Reversed = True

# Sketch on XZ plane
sketch22 = doc.addObject("Sketcher::SketchObject", "Sketch021")
body.addObject(sketch22)
sketch22.AttachmentSupport = (doc.XZ_Plane, [""])
sketch22.MapMode = "FlatFace"
sketch22.AttachmentOffset = App.Placement(App.Vector(0, 0, -16), App.Rotation())
sketch22.addGeometry([
    Part.LineSegment(App.Vector(11, -44, 0), App.Vector(11, -39, 0)),
    Part.LineSegment(App.Vector(11, -39, 0), App.Vector(19, -39, 0)),
    Part.LineSegment(App.Vector(19, -39, 0), App.Vector(19, -44, 0)),
    Part.LineSegment(App.Vector(19, -44, 0), App.Vector(11, -44, 0)),
], False)
sketch22.addConstraint([
    Sketcher.Constraint("Coincident", 0, 2, 1, 1),
    Sketcher.Constraint("Coincident", 1, 2, 2, 1),
    Sketcher.Constraint("Coincident", 2, 2, 3, 1),
    Sketcher.Constraint("Coincident", 3, 2, 0, 1),
    Sketcher.Constraint("Vertical", 0),
    Sketcher.Constraint("Horizontal", 1),
    Sketcher.Constraint("Vertical", 2),
    Sketcher.Constraint("Horizontal", 3),
    Sketcher.Constraint("DistanceX", 1, 1, 1, 2, 8.0),
    Sketcher.Constraint("DistanceY", 0, 1, 0, 2, 5.0),
    Sketcher.Constraint("DistanceX", -1, 1, 0, 2, 11.0),
    Sketcher.Constraint("DistanceY", 0, 2, -1, 1, 39.0),
])
pocket18 = doc.addObject("PartDesign::Pocket", "Pocket017")
body.addObject(pocket18)
pocket18.Profile = sketch22
pocket18.Type = "UpToFirst"
pocket18.Reversed = True

# Sketch on XZ plane
sketch23 = doc.addObject("Sketcher::SketchObject", "Sketch022")
body.addObject(sketch23)
sketch23.AttachmentSupport = (doc.XZ_Plane, [""])
sketch23.MapMode = "FlatFace"
sketch23.AttachmentOffset = App.Placement(App.Vector(0, 0, -16), App.Rotation())
sketch23.addGeometry([
    Part.LineSegment(App.Vector(11, -25, 0), App.Vector(11, -20, 0)),
    Part.LineSegment(App.Vector(11, -20, 0), App.Vector(19, -20, 0)),
    Part.LineSegment(App.Vector(19, -20, 0), App.Vector(19, -25, 0)),
    Part.LineSegment(App.Vector(19, -25, 0), App.Vector(11, -25, 0)),
], False)
sketch23.addConstraint([
    Sketcher.Constraint("Coincident", 0, 2, 1, 1),
    Sketcher.Constraint("Coincident", 1, 2, 2, 1),
    Sketcher.Constraint("Coincident", 2, 2, 3, 1),
    Sketcher.Constraint("Coincident", 3, 2, 0, 1),
    Sketcher.Constraint("Vertical", 0),
    Sketcher.Constraint("Horizontal", 1),
    Sketcher.Constraint("Vertical", 2),
    Sketcher.Constraint("Horizontal", 3),
    Sketcher.Constraint("DistanceX", 1, 1, 1, 2, 8.0),
    Sketcher.Constraint("DistanceY", 0, 1, 0, 2, 5.0),
    Sketcher.Constraint("DistanceX", -1, 1, 0, 2, 11.0),
    Sketcher.Constraint("DistanceY", 0, 2, -1, 1, 20.0),
])
pocket19 = doc.addObject("PartDesign::Pocket", "Pocket018")
body.addObject(pocket19)
pocket19.Profile = sketch23
pocket19.Type = "UpToFirst"
pocket19.Reversed = True

# Sketch on XZ plane
sketch24 = doc.addObject("Sketcher::SketchObject", "Sketch023")
body.addObject(sketch24)
sketch24.AttachmentSupport = (doc.XZ_Plane, [""])
sketch24.MapMode = "FlatFace"
sketch24.AttachmentOffset = App.Placement(App.Vector(0, 0, -16), App.Rotation())
sketch24.addGeometry([
    Part.LineSegment(App.Vector(11, -6, 0), App.Vector(11, -1, 0)),
    Part.LineSegment(App.Vector(11, -1, 0), App.Vector(19, -1, 0)),
    Part.LineSegment(App.Vector(19, -1, 0), App.Vector(19, -6, 0)),
    Part.LineSegment(App.Vector(19, -6, 0), App.Vector(11, -6, 0)),
], False)
sketch24.addConstraint([
    Sketcher.Constraint("Coincident", 0, 2, 1, 1),
    Sketcher.Constraint("Coincident", 1, 2, 2, 1),
    Sketcher.Constraint("Coincident", 2, 2, 3, 1),
    Sketcher.Constraint("Coincident", 3, 2, 0, 1),
    Sketcher.Constraint("Vertical", 0),
    Sketcher.Constraint("Horizontal", 1),
    Sketcher.Constraint("Vertical", 2),
    Sketcher.Constraint("Horizontal", 3),
    Sketcher.Constraint("DistanceX", 1, 1, 1, 2, 8.0),
    Sketcher.Constraint("DistanceY", 0, 1, 0, 2, 5.0),
    Sketcher.Constraint("DistanceX", -1, 1, 0, 2, 11.0),
    Sketcher.Constraint("DistanceY", 0, 2, -1, 1, 1.0),
])
pocket20 = doc.addObject("PartDesign::Pocket", "Pocket019")
body.addObject(pocket20)
pocket20.Profile = sketch24
pocket20.Type = "UpToFirst"
pocket20.Reversed = True

doc.recompute()
